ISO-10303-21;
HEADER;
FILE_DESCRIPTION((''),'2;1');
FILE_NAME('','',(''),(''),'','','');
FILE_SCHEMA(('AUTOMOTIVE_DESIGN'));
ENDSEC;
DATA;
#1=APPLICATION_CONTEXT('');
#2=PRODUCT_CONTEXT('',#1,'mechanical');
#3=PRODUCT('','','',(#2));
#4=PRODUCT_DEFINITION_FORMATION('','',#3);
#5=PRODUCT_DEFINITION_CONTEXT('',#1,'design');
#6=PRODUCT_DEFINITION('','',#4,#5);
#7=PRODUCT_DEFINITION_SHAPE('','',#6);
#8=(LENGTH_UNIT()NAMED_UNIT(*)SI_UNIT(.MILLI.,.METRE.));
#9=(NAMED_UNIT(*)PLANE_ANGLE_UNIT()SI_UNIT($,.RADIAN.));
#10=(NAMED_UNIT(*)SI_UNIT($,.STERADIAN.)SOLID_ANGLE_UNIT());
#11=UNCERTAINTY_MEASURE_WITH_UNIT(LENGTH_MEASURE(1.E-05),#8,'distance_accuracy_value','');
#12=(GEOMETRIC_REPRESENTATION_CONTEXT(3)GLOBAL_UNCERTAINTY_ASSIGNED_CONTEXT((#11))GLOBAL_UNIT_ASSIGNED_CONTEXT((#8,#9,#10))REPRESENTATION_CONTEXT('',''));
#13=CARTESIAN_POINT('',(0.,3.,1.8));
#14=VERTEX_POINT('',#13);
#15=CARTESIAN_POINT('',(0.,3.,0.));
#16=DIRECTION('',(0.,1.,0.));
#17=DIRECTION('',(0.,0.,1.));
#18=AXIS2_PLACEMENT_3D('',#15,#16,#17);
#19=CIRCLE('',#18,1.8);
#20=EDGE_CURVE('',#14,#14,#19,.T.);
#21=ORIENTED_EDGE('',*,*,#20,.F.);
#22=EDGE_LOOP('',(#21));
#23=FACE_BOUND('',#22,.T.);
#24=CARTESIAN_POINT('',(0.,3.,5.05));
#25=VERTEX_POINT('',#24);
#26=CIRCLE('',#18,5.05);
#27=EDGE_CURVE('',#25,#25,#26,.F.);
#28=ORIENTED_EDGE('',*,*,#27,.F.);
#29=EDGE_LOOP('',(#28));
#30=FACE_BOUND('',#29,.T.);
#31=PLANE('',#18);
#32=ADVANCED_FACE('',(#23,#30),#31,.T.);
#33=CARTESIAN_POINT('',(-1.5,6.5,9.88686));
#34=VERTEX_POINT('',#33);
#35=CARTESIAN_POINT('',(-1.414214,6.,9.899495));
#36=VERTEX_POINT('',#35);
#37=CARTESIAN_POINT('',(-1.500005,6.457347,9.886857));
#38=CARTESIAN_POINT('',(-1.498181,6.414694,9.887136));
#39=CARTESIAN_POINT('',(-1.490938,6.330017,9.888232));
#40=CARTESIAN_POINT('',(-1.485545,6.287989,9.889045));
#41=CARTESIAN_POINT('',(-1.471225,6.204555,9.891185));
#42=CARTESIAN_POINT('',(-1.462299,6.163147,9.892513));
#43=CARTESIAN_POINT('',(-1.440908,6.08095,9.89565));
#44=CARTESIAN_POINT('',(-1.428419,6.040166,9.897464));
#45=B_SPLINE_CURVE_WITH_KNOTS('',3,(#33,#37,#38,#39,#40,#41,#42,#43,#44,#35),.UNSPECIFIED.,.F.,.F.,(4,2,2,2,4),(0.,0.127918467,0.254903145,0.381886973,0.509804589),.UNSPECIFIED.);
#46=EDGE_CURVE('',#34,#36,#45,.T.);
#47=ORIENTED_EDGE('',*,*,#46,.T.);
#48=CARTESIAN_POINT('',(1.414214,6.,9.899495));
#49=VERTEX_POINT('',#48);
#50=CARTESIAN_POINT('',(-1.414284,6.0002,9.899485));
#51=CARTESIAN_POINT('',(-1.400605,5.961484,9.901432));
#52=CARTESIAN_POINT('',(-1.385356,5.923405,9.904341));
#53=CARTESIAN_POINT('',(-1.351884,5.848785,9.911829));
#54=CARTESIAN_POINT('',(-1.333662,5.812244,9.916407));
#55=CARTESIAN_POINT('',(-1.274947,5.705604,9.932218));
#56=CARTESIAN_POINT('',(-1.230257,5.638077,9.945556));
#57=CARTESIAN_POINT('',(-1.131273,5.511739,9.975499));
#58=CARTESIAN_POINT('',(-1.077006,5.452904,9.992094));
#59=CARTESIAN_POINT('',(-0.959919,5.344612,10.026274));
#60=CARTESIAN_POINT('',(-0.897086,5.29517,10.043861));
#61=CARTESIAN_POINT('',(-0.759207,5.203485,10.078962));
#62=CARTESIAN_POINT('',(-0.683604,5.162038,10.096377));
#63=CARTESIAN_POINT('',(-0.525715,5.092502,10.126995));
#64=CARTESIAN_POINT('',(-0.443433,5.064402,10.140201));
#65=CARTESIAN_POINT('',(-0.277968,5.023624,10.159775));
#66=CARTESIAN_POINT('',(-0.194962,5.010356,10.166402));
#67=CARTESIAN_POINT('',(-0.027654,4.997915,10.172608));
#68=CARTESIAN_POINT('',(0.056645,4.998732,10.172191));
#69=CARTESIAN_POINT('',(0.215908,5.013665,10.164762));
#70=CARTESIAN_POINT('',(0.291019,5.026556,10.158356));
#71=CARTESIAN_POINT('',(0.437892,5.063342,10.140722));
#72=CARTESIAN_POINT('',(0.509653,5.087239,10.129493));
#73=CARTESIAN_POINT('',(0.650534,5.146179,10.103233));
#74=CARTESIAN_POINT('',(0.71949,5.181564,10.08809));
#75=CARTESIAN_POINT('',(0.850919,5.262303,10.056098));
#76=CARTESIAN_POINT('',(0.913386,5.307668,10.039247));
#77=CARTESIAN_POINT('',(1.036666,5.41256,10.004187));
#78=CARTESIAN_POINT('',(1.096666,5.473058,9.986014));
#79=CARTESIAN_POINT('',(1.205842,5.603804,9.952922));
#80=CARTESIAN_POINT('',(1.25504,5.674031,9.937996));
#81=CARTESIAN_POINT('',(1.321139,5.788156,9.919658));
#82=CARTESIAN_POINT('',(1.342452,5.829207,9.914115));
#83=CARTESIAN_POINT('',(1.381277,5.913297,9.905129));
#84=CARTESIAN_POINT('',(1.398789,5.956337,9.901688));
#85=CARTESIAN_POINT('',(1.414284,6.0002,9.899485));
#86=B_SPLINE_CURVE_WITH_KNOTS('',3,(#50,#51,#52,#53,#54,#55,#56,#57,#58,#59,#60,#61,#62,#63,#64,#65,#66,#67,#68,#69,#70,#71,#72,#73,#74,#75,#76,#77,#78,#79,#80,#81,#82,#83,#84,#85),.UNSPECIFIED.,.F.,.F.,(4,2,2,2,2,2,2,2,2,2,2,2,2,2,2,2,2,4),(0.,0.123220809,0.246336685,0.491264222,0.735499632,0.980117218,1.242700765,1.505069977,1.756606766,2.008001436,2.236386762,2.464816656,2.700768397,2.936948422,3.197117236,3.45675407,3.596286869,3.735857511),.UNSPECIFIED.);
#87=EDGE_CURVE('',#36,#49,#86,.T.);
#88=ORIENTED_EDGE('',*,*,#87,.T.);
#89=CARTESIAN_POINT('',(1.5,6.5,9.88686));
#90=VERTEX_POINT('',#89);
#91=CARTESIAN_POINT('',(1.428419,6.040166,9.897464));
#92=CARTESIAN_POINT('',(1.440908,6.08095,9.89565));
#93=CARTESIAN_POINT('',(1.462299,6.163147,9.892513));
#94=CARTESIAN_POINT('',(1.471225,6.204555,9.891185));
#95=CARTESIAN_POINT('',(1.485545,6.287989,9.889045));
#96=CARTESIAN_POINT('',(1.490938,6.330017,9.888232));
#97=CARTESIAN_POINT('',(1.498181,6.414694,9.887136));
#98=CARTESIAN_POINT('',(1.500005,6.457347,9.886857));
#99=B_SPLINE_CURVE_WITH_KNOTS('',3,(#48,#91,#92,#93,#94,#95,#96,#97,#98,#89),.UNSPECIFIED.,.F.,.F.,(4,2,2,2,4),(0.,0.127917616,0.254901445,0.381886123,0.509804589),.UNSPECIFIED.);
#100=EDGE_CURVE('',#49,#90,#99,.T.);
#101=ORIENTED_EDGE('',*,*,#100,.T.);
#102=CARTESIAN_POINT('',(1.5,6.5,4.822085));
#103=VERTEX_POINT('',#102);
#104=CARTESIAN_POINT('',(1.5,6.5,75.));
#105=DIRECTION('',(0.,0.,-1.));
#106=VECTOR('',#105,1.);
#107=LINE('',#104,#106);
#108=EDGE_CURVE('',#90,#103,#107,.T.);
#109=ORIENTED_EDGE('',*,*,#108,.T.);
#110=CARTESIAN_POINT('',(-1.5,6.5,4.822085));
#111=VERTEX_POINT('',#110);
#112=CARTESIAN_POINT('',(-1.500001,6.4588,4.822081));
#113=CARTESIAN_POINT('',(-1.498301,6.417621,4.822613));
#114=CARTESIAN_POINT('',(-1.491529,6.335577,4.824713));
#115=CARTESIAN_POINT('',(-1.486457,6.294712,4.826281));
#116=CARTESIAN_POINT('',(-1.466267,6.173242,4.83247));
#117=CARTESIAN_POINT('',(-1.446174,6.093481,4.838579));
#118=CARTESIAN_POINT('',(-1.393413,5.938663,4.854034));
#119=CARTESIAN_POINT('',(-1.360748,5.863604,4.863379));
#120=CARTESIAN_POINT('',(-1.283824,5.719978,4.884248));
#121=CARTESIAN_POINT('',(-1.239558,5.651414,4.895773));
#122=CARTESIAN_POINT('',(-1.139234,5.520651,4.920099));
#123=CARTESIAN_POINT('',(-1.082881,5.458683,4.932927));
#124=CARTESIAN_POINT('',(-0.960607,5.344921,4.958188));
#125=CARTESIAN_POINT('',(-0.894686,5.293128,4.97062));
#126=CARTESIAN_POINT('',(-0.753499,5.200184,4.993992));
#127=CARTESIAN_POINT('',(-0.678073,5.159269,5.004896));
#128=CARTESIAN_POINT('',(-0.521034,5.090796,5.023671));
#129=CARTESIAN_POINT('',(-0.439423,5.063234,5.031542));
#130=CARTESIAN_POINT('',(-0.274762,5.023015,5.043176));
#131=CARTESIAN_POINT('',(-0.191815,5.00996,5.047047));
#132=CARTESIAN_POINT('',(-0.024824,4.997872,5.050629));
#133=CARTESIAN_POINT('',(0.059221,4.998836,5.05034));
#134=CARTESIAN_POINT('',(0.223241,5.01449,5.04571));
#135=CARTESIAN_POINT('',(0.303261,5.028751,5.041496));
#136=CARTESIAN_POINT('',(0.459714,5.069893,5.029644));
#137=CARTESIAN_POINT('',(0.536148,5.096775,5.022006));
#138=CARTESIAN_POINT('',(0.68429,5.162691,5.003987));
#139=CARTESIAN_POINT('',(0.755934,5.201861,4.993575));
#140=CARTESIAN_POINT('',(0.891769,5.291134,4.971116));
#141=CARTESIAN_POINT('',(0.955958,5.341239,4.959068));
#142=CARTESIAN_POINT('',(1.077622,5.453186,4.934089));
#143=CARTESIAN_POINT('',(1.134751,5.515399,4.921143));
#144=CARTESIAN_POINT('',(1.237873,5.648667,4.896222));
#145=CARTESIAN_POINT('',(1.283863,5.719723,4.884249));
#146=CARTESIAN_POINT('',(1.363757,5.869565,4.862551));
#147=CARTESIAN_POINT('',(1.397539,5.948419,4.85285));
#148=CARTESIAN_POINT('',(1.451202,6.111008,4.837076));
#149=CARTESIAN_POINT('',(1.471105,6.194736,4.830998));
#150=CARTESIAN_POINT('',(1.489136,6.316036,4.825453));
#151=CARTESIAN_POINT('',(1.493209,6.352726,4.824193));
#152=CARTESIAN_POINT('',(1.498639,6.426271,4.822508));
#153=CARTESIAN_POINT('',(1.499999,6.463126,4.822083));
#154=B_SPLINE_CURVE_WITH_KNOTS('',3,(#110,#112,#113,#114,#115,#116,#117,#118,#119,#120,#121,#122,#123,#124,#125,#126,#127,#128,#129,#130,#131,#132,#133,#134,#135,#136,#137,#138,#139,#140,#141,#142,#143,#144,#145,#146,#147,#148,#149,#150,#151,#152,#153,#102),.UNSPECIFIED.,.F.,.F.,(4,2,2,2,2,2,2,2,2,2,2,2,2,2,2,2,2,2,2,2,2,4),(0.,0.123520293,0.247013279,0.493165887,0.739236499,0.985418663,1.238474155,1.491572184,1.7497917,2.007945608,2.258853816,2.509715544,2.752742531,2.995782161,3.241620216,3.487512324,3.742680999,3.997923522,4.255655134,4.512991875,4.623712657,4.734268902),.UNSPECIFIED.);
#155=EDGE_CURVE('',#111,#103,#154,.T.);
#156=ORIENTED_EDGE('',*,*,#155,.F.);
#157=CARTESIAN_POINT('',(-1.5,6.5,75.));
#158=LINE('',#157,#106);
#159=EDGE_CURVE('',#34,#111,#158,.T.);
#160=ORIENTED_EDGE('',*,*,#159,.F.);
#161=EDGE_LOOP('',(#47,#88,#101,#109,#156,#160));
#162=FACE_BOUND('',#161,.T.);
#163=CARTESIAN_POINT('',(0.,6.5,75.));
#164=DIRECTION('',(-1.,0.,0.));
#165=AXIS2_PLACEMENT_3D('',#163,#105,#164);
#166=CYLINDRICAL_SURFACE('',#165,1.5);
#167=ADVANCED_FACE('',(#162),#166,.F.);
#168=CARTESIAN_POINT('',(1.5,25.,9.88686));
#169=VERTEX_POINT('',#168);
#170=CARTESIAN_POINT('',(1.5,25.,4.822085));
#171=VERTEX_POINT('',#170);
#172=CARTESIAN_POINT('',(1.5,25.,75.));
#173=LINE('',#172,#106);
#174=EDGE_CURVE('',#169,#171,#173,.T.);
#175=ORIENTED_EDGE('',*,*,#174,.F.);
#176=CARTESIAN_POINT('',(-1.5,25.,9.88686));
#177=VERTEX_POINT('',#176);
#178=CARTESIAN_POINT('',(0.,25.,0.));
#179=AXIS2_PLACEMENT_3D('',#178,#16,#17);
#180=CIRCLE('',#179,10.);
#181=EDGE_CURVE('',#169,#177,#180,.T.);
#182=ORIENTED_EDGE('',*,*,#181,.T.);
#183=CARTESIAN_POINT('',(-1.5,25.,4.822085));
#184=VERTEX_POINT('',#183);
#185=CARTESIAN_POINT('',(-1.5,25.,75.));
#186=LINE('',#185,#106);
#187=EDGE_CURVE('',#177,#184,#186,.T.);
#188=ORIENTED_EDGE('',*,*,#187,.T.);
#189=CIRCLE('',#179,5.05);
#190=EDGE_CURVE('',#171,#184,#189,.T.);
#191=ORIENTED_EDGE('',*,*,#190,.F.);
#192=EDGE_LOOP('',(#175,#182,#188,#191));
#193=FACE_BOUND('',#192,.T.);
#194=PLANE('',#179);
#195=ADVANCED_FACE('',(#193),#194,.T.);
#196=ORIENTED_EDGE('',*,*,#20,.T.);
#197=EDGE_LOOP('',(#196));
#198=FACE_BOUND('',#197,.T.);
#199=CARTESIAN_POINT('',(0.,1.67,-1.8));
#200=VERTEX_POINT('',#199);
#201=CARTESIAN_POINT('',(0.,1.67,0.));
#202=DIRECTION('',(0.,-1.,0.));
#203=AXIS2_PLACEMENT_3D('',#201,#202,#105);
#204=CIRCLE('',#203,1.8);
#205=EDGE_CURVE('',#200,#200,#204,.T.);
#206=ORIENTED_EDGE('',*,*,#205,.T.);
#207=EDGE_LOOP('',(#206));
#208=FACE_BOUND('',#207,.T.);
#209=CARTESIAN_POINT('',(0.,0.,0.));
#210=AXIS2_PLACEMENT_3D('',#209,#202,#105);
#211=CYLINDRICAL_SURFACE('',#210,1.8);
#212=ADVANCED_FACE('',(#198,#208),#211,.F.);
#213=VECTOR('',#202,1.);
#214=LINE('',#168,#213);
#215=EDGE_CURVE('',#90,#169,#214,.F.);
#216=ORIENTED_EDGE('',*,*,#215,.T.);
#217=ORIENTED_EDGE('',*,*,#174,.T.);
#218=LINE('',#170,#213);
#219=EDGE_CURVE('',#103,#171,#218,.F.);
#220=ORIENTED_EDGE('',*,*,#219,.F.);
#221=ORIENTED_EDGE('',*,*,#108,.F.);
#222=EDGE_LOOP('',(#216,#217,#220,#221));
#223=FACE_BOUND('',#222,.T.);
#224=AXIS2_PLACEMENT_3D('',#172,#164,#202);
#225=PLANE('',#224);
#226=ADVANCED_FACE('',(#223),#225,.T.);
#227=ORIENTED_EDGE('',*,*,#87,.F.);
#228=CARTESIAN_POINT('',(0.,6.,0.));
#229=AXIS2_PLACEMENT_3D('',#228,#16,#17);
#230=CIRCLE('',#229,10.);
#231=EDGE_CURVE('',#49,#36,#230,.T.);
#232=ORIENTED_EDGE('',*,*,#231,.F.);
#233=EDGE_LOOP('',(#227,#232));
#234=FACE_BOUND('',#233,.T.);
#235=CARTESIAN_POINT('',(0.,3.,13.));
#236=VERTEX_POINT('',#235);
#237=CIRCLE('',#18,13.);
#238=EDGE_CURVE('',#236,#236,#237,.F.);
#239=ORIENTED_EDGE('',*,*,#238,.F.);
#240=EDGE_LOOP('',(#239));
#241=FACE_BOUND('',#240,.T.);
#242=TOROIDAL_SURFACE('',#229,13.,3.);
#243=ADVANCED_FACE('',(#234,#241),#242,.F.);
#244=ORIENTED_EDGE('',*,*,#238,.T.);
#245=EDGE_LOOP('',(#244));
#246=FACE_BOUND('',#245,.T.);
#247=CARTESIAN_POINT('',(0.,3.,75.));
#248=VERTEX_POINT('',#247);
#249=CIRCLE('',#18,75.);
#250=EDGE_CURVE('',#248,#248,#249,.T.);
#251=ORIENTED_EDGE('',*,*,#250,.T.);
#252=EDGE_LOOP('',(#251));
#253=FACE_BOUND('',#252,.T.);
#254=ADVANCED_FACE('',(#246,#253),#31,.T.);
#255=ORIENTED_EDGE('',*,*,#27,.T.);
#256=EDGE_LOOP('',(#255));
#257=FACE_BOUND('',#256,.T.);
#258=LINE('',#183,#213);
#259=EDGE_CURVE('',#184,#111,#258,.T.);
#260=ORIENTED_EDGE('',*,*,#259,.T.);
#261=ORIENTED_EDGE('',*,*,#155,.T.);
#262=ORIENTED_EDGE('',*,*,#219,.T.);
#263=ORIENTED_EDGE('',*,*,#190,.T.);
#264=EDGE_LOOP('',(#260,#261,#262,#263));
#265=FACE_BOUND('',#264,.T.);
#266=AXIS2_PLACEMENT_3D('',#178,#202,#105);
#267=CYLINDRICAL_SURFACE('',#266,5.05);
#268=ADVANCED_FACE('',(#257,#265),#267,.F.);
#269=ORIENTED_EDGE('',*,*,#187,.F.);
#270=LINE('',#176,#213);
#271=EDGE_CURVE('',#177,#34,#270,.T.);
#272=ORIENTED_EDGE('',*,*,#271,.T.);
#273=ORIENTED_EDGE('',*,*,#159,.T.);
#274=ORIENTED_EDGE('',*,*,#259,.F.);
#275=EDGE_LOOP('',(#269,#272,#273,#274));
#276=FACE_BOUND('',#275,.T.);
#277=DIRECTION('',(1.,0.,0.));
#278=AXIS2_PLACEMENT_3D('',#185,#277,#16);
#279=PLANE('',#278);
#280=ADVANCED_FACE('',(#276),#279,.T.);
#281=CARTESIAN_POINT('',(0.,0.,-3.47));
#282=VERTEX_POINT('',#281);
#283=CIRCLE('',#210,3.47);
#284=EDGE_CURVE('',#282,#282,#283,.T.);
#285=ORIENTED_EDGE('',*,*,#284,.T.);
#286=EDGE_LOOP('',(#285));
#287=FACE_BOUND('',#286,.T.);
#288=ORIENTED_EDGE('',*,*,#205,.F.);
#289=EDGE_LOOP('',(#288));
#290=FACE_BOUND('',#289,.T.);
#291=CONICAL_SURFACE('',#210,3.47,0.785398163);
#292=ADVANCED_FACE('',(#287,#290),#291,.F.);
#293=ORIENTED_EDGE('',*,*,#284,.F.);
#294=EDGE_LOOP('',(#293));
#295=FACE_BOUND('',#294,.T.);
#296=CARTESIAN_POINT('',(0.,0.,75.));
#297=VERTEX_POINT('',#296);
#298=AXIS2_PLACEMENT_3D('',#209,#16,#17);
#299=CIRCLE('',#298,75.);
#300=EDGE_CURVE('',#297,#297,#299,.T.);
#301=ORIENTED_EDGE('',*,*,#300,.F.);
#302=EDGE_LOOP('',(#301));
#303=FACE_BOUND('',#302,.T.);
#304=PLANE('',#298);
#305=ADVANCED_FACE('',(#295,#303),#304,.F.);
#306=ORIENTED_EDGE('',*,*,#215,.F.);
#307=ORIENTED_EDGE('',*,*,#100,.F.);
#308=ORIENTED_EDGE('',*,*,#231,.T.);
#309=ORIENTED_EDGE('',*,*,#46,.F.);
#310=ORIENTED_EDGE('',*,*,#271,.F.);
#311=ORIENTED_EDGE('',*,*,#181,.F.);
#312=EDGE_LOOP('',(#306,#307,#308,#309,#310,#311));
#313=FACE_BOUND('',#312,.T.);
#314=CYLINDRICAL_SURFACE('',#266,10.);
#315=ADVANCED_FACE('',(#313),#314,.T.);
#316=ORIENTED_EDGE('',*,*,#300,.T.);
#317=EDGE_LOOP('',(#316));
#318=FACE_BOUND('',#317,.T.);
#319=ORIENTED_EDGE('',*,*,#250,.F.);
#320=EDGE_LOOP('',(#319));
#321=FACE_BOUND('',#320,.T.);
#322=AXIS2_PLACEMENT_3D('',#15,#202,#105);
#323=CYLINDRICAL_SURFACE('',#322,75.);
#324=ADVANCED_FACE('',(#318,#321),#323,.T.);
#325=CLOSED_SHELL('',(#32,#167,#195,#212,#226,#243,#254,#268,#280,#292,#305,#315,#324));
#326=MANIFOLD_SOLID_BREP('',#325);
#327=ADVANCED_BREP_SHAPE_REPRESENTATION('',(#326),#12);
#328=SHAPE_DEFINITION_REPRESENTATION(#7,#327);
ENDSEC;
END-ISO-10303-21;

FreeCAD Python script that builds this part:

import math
import FreeCAD as App
import Part
import Sketcher
from FreeCAD import Vector
Q = App.Units.Quantity


def edges_at(feature, points):
    """Names of the edges that pass closest to the given points."""
    edges = feature.Shape.Edges
    near = lambda p: min(range(len(edges)), key=lambda i: edges[i].distToShape(Part.Vertex(*p))[0])
    return sorted({f"Edge{near(p) + 1}" for p in points})

doc = App.newDocument("Part")
body = doc.addObject("PartDesign::Body", "Body")

sketch1 = body.newObject("Sketcher::SketchObject", "Sketch")
sketch1.AttachmentSupport = (doc.getObject("XZ_Plane"), [""])
sketch1.MapMode = "FlatFace"
sketch1.addGeometry(Part.Circle(Vector(0, 0, 0), Vector(0, 0, 1), 75), False)
sketch1.addConstraint(Sketcher.Constraint("Coincident", 0, 3, -1, 1))
sketch1.addConstraint(Sketcher.Constraint("Diameter", 0, Q("150 mm")))
pad1 = body.newObject("PartDesign::Pad", "Pad")
pad1.Profile = sketch1
pad1.Length = 3
pad1.Reversed = True

sketch2 = body.newObject("Sketcher::SketchObject", "Sketch001")
sketch2.AttachmentSupport = (doc.getObject("XZ_Plane"), [""])
sketch2.MapMode = "FlatFace"
sketch2.AttachmentOffset = App.Placement(Vector(0, 0, -3), App.Rotation())
sketch2.addGeometry(Part.Circle(Vector(0, 0, 0), Vector(0, 0, 1), 10), False)
sketch2.addGeometry(Part.Circle(Vector(0, 0, 0), Vector(0, 0, 1), 5.05), False)
sketch2.addConstraint(Sketcher.Constraint("Coincident", 0, 3, -1, 1))
sketch2.addConstraint(Sketcher.Constraint("Coincident", 1, 3, -1, 1))
sketch2.addConstraint(Sketcher.Constraint("Diameter", 0, Q("20 mm")))
sketch2.addConstraint(Sketcher.Constraint("Diameter", 1, Q("10.1 mm")))
pad2 = body.newObject("PartDesign::Pad", "Pad001")
pad2.Profile = sketch2
pad2.Length = 22
pad2.Reversed = True
doc.recompute()

fillet = body.newObject("PartDesign::Fillet", "Fillet")
fillet.Base = (pad2, edges_at(pad2, [(-10, 3, 0)]))
fillet.Radius = 3

sketch3 = body.newObject("Sketcher::SketchObject", "Sketch002")
sketch3.AttachmentSupport = (doc.getObject("XY_Plane"), [""])
sketch3.MapMode = "FlatFace"
sketch3.addGeometry(Part.LineSegment(Vector(1.5, 6.5, 0), Vector(1.5, 25, 0)), False)
sketch3.addGeometry(Part.ArcOfCircle(Part.Circle(Vector(0, 25, 0), Vector(0, 0, 1), 1.5), math.radians(0), math.radians(180)), False)
sketch3.addGeometry(Part.LineSegment(Vector(-1.5, 25, 0), Vector(-1.5, 6.5, 0)), False)
sketch3.addGeometry(Part.ArcOfCircle(Part.Circle(Vector(0, 6.5, 0), Vector(0, 0, 1), 1.5), math.radians(180), math.radians(360)), False)
sketch3.addConstraint(Sketcher.Constraint("Tangent", 0, 2, 1, 1))
sketch3.addConstraint(Sketcher.Constraint("Tangent", 1, 2, 2, 1))
sketch3.addConstraint(Sketcher.Constraint("Tangent", 2, 2, 3, 1))
sketch3.addConstraint(Sketcher.Constraint("Tangent", 3, 2, 0, 1))
sketch3.addConstraint(Sketcher.Constraint("Vertical", 0))
sketch3.addConstraint(Sketcher.Constraint("Vertical", 2))
sketch3.addConstraint(Sketcher.Constraint("PointOnObject", 1, 3, -2))
sketch3.addConstraint(Sketcher.Constraint("Radius", 1, Q("1.5 mm")))
sketch3.addConstraint(Sketcher.Constraint("DistanceY", 0, 1, 0, 2, Q("18.5 mm")))
sketch3.addConstraint(Sketcher.Constraint("DistanceY", -1, 1, 1, 3, Q("25 mm")))
pocket1 = body.newObject("PartDesign::Pocket", "Pocket")
pocket1.Profile = sketch3
pocket1.Type = "ThroughAll"
pocket1.Reversed = True

sketch4 = body.newObject("Sketcher::SketchObject", "Sketch003")
sketch4.AttachmentSupport = (doc.getObject("XZ_Plane"), [""])
sketch4.MapMode = "FlatFace"
sketch4.addGeometry(Part.Circle(Vector(0, 0, 0), Vector(0, 0, 1), 1.8), False)
sketch4.addConstraint(Sketcher.Constraint("Coincident", 0, 3, -1, 1))
sketch4.addConstraint(Sketcher.Constraint("Diameter", 0, Q("3.6 mm")))
doc.recompute()
hole = body.newObject("PartDesign::Hole", "Hole")
hole.Profile = sketch4
hole.ThreadType = "None"
hole.Diameter = 3.6
hole.DepthType = "ThroughAll"
hole.HoleCutType = "Countersink"
hole.HoleCutDiameter = 6.94
hole.HoleCutCountersinkAngle = 90

doc.recompute()
